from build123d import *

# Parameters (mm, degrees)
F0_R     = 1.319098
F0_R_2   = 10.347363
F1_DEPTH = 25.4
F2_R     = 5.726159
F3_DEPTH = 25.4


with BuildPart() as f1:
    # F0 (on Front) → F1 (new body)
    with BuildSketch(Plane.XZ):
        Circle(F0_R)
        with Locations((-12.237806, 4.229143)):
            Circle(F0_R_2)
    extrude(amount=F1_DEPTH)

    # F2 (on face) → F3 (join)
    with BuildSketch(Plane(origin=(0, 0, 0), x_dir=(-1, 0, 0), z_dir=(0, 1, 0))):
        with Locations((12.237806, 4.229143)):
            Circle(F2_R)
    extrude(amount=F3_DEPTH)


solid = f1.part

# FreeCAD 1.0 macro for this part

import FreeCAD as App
import Part
import Sketcher

V = App.Vector
Q = App.Units.Quantity

doc = App.newDocument("Part")
body = doc.addObject("PartDesign::Body", "Body")
body.AllowCompound = True

sketch1 = doc.addObject("Sketcher::SketchObject", "Sketch")
body.addObject(sketch1)
sketch1.AttachmentSupport = (doc.XZ_Plane, [""])
sketch1.MapMode = "FlatFace"
sketch1.addGeometry([
    Part.Circle(V(0, 0, 0), V(0, 0, 1), 1.3),
    Part.Circle(V(-12.2, 4.2, 0), V(0, 0, 1), 10.3),
], False)
sketch1.addConstraint([
    Sketcher.Constraint("Coincident", 0, 3, -1, 1),
    Sketcher.Constraint("Diameter", 0, 2.638196),
    Sketcher.Constraint("Diameter", 1, 20.694726),
    Sketcher.Constraint("DistanceX", 1, 3, -1, 1, 12.237806),
    Sketcher.Constraint("DistanceY", -1, 1, 1, 3, 4.229143),
])
pad1 = doc.addObject("PartDesign::Pad", "Pad")
body.addObject(pad1)
pad1.Profile = sketch1
pad1.Length = Q("1 in")

sketch2 = doc.addObject("Sketcher::SketchObject", "Sketch001")
body.addObject(sketch2)
sketch2.AttachmentSupport = (doc.XZ_Plane, [""])
sketch2.MapMode = "FlatFace"
sketch2.addGeometry(Part.Circle(V(-12, 4, 0), V(0, 0, 1), 6), False)
sketch2.addConstraint([
    Sketcher.Constraint("Diameter", 0, 11.452318),
    Sketcher.Constraint("DistanceX", 0, 3, -1, 1, 12.237806),
    Sketcher.Constraint("DistanceY", -1, 1, 0, 3, 4.229143),
])
pad2 = doc.addObject("PartDesign::Pad", "Pad001")
body.addObject(pad2)
pad2.Profile = sketch2
pad2.Length = Q("1 in")
pad2.Reversed = True

doc.recompute()
